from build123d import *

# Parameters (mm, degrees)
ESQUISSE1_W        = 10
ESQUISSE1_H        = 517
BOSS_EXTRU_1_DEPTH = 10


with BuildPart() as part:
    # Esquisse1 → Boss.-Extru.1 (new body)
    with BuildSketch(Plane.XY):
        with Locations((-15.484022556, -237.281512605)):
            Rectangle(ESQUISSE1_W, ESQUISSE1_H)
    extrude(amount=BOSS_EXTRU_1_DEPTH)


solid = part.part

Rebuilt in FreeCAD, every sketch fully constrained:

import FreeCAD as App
import Part
import Sketcher

doc = App.newDocument("Part")
params = doc.addObject("Spreadsheet::Sheet", "Params")
for row, (alias, value) in enumerate([
    ("sketch1_width", "10 mm"),
    ("sketch1_height", "517 mm"),
    ("pad1_length", "10 mm"),
], start=1):
    params.set(f"A{row}", alias)
    params.set(f"B{row}", "=" + value)
    params.setAlias(f"B{row}", alias)

body = doc.addObject("PartDesign::Body", "Body")

sketch1 = doc.addObject("Sketcher::SketchObject", "Sketch")
body.addObject(sketch1)
sketch1.AttachmentSupport = (doc.XY_Plane, [""])
sketch1.MapMode = "FlatFace"
sketch1.addGeometry([
    Part.LineSegment(App.Vector(-20, 21, 0), App.Vector(-20, -496, 0)),
    Part.LineSegment(App.Vector(-20, -496, 0), App.Vector(-10, -496, 0)),
    Part.LineSegment(App.Vector(-10, -496, 0), App.Vector(-10, 21, 0)),
    Part.LineSegment(App.Vector(-10, 21, 0), App.Vector(-20, 21, 0)),
], False)
sketch1.addConstraint([
    Sketcher.Constraint("Coincident", 0, 2, 1, 1),
    Sketcher.Constraint("Coincident", 1, 2, 2, 1),
    Sketcher.Constraint("Coincident", 2, 2, 3, 1),
    Sketcher.Constraint("Coincident", 3, 2, 0, 1),
    Sketcher.Constraint("Vertical", 0),
    Sketcher.Constraint("Horizontal", 1),
    Sketcher.Constraint("Vertical", 2),
    Sketcher.Constraint("Horizontal", 3),
    Sketcher.Constraint("DistanceX", 1, 1, 1, 2, 10.0),
    Sketcher.Constraint("DistanceY", 0, 2, 0, 1, 517.0),
    Sketcher.Constraint("DistanceX", 0, 2, -1, 1, 20.484023),
    Sketcher.Constraint("DistanceY", 0, 2, -1, 1, 495.781513),
])
sketch1.setExpression("Constraints[8]", "Params.sketch1_width")
sketch1.setExpression("Constraints[9]", "Params.sketch1_height")
pad1 = doc.addObject("PartDesign::Pad", "Pad")
body.addObject(pad1)
pad1.Profile = sketch1
pad1.setExpression("Length", "Params.pad1_length")

doc.recompute()
